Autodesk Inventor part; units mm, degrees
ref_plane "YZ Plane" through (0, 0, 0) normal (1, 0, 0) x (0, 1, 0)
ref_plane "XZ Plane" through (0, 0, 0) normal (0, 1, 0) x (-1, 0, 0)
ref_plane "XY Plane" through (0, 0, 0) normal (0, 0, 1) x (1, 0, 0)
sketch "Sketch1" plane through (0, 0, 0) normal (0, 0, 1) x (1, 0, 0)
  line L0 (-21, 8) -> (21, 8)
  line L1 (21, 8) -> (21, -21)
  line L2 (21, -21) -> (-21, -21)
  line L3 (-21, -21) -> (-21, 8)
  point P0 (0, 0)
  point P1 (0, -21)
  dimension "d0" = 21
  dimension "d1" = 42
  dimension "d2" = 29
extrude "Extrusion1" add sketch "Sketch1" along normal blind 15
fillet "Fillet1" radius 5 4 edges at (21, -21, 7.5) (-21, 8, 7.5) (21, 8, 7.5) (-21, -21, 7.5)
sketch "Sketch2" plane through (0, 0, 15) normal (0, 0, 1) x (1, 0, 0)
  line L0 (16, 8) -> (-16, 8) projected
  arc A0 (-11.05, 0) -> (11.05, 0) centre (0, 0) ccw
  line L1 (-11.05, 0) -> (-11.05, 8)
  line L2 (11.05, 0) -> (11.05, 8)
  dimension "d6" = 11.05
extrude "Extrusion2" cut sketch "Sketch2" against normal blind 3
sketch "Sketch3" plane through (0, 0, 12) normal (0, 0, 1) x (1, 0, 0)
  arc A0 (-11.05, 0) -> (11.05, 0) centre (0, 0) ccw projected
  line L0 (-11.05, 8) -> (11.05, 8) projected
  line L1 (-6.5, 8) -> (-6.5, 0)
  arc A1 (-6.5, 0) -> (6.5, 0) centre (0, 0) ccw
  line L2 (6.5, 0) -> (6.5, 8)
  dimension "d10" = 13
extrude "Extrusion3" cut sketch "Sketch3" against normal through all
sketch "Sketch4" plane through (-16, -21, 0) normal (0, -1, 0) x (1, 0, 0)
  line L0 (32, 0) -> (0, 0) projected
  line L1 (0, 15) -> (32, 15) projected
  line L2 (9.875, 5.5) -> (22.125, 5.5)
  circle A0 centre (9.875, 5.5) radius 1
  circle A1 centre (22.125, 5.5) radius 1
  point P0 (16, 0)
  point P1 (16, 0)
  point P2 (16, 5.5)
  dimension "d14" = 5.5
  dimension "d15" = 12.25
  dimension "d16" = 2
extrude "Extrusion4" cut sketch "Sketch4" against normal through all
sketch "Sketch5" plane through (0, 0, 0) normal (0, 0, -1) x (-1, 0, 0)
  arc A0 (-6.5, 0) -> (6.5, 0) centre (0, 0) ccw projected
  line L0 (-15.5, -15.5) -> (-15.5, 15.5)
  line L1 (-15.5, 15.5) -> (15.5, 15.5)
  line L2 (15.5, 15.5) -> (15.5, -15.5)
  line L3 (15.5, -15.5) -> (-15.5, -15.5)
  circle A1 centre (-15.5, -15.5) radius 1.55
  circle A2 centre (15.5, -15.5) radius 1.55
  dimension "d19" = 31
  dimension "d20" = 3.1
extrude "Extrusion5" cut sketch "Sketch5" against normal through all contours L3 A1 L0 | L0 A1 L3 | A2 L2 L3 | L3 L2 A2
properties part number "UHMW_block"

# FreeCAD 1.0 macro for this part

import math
import FreeCAD as App
import Part
import Sketcher


def edges_at(feature, points):
    """Names of the edges that pass closest to the given points."""
    edges = feature.Shape.Edges
    near = lambda p: min(range(len(edges)), key=lambda i: edges[i].distToShape(Part.Vertex(*p))[0])
    return sorted({f"Edge{near(p) + 1}" for p in points})


def add_polygon(sketch, points):
    """Adds a closed chain of lines whose ends are joined by coincident constraints."""
    first, n = sketch.GeometryCount, len(points)
    for a, b in zip(points, points[1:] + points[:1]):
        sketch.addGeometry(Part.LineSegment(App.Vector(*a, 0), App.Vector(*b, 0)), False)
    for i in range(n):
        sketch.addConstraint(Sketcher.Constraint("Coincident", first + i, 2, first + (i + 1) % n, 1))

doc = App.newDocument("Part")
body = doc.addObject("PartDesign::Body", "Body")

sketch1 = body.newObject("Sketcher::SketchObject", "Sketch")
sketch1.AttachmentSupport = (doc.getObject("XY_Plane"), [""])
sketch1.MapMode = "FlatFace"
add_polygon(sketch1, [(21, 8), (-21, 8), (-21, -21), (21, -21)])
sketch1.addConstraint(Sketcher.Constraint("Horizontal", 0))
sketch1.addConstraint(Sketcher.Constraint("Vertical", 1))
sketch1.addConstraint(Sketcher.Constraint("Horizontal", 2))
sketch1.addConstraint(Sketcher.Constraint("Vertical", 3))
sketch1.addConstraint(Sketcher.Constraint("DistanceX", 0, 2, 0, 1, 42.0))
sketch1.addConstraint(Sketcher.Constraint("DistanceY", 1, 2, 1, 1, 29.0))
sketch1.addConstraint(Sketcher.Constraint("DistanceX", 0, 2, -1, 1, 21.0))
sketch1.addConstraint(Sketcher.Constraint("DistanceY", 1, 2, -1, 1, 21.0))
pad1 = body.newObject("PartDesign::Pad", "Pad")
pad1.Profile = sketch1
pad1.Length = 15
doc.recompute()

fillet = body.newObject("PartDesign::Fillet", "Fillet")
fillet.Base = (pad1, edges_at(pad1, [
    (21, -21, 7.5),
    (-21, 8, 7.5),
    (21, 8, 7.5),
    (-21, -21, 7.5),
]))
fillet.Radius = 5

sketch2 = body.newObject("Sketcher::SketchObject", "Sketch001")
sketch2.AttachmentSupport = (doc.getObject("XY_Plane"), [""])
sketch2.MapMode = "FlatFace"
sketch2.AttachmentOffset = App.Placement(App.Vector(0, 0, 15), App.Rotation())
sketch2.addGeometry(Part.LineSegment(App.Vector(11.05, 0, 0), App.Vector(11.05, 8, 0)), False)
sketch2.addGeometry(Part.LineSegment(App.Vector(11.05, 8, 0), App.Vector(-11.05, 8, 0)), False)
sketch2.addGeometry(Part.LineSegment(App.Vector(-11.05, 8, 0), App.Vector(-11.05, 0, 0)), False)
sketch2.addGeometry(Part.ArcOfCircle(Part.Circle(App.Vector(0, 0, 0), App.Vector(0, 0, 1), 11.05), math.radians(180), math.radians(360)), False)
sketch2.addConstraint(Sketcher.Constraint("Coincident", 0, 2, 1, 1))
sketch2.addConstraint(Sketcher.Constraint("Coincident", 1, 2, 2, 1))
sketch2.addConstraint(Sketcher.Constraint("Tangent", 2, 2, 3, 1))
sketch2.addConstraint(Sketcher.Constraint("Tangent", 3, 2, 0, 1))
sketch2.addConstraint(Sketcher.Constraint("Vertical", 0))
sketch2.addConstraint(Sketcher.Constraint("Horizontal", 1))
sketch2.addConstraint(Sketcher.Constraint("Vertical", 2))
sketch2.addConstraint(Sketcher.Constraint("Coincident", 3, 3, -1, 1))
sketch2.addConstraint(Sketcher.Constraint("Radius", 3, 11.05))
sketch2.addConstraint(Sketcher.Constraint("DistanceY", 0, 1, 0, 2, 8.0))
pocket1 = body.newObject("PartDesign::Pocket", "Pocket")
pocket1.Profile = sketch2
pocket1.Length = 3

sketch3 = body.newObject("Sketcher::SketchObject", "Sketch002")
sketch3.AttachmentSupport = (doc.getObject("XY_Plane"), [""])
sketch3.MapMode = "FlatFace"
sketch3.AttachmentOffset = App.Placement(App.Vector(0, 0, 12), App.Rotation())
sketch3.addGeometry(Part.LineSegment(App.Vector(6.5, 8, 0), App.Vector(-6.5, 8, 0)), False)
sketch3.addGeometry(Part.LineSegment(App.Vector(-6.5, 8, 0), App.Vector(-6.5, 0, 0)), False)
sketch3.addGeometry(Part.ArcOfCircle(Part.Circle(App.Vector(0, 0, 0), App.Vector(0, 0, 1), 6.5), math.radians(180), math.radians(360)), False)
sketch3.addGeometry(Part.LineSegment(App.Vector(6.5, 0, 0), App.Vector(6.5, 8, 0)), False)
sketch3.addConstraint(Sketcher.Constraint("Coincident", 0, 2, 1, 1))
sketch3.addConstraint(Sketcher.Constraint("Tangent", 1, 2, 2, 1))
sketch3.addConstraint(Sketcher.Constraint("Tangent", 2, 2, 3, 1))
sketch3.addConstraint(Sketcher.Constraint("Coincident", 3, 2, 0, 1))
sketch3.addConstraint(Sketcher.Constraint("Horizontal", 0))
sketch3.addConstraint(Sketcher.Constraint("Vertical", 1))
sketch3.addConstraint(Sketcher.Constraint("Vertical", 3))
sketch3.addConstraint(Sketcher.Constraint("Coincident", 2, 3, -1, 1))
sketch3.addConstraint(Sketcher.Constraint("Radius", 2, 6.5))
sketch3.addConstraint(Sketcher.Constraint("DistanceY", 1, 2, 1, 1, 8.0))
pocket2 = body.newObject("PartDesign::Pocket", "Pocket001")
pocket2.Profile = sketch3
pocket2.Type = "ThroughAll"

sketch4 = body.newObject("Sketcher::SketchObject", "Sketch003")
sketch4.AttachmentSupport = (doc.getObject("XZ_Plane"), [""])
sketch4.MapMode = "FlatFace"
sketch4.AttachmentOffset = App.Placement(App.Vector(0, 0, 21), App.Rotation())
sketch4.addGeometry(Part.Circle(App.Vector(6.125, 5.5, 0), App.Vector(0, 0, 1), 1), False)
sketch4.addGeometry(Part.Circle(App.Vector(-6.125, 5.5, 0), App.Vector(0, 0, 1), 1), False)
sketch4.addConstraint(Sketcher.Constraint("Equal", 0, 1))
sketch4.addConstraint(Sketcher.Constraint("Symmetric", 0, 3, 1, 3, -2))
sketch4.addConstraint(Sketcher.Constraint("Diameter", 0, 2.0))
sketch4.addConstraint(Sketcher.Constraint("DistanceY", -1, 1, 0, 3, 5.5))
sketch4.addConstraint(Sketcher.Constraint("DistanceX", 1, 3, 0, 3, 12.25))
pocket3 = body.newObject("PartDesign::Pocket", "Pocket002")
pocket3.Profile = sketch4
pocket3.Type = "ThroughAll"

sketch5 = body.newObject("Sketcher::SketchObject", "Sketch004")
sketch5.AttachmentSupport = (doc.getObject("XY_Plane"), [""])
sketch5.MapMode = "FlatFace"
sketch5.addGeometry(Part.Circle(App.Vector(15.5, -15.5, 0), App.Vector(0, 0, 1), 1.55), False)
sketch5.addGeometry(Part.Circle(App.Vector(-15.5, -15.5, 0), App.Vector(0, 0, 1), 1.55), False)
sketch5.addConstraint(Sketcher.Constraint("Equal", 0, 1))
sketch5.addConstraint(Sketcher.Constraint("Symmetric", 0, 3, 1, 3, -2))
sketch5.addConstraint(Sketcher.Constraint("Diameter", 0, 3.1))
sketch5.addConstraint(Sketcher.Constraint("DistanceX", 1, 3, 0, 3, 31.0))
sketch5.addConstraint(Sketcher.Constraint("DistanceY", 0, 3, -1, 1, 15.5))
pocket4 = body.newObject("PartDesign::Pocket", "Pocket003")
pocket4.Profile = sketch5
pocket4.Type = "ThroughAll"
pocket4.Reversed = True

doc.recompute()
